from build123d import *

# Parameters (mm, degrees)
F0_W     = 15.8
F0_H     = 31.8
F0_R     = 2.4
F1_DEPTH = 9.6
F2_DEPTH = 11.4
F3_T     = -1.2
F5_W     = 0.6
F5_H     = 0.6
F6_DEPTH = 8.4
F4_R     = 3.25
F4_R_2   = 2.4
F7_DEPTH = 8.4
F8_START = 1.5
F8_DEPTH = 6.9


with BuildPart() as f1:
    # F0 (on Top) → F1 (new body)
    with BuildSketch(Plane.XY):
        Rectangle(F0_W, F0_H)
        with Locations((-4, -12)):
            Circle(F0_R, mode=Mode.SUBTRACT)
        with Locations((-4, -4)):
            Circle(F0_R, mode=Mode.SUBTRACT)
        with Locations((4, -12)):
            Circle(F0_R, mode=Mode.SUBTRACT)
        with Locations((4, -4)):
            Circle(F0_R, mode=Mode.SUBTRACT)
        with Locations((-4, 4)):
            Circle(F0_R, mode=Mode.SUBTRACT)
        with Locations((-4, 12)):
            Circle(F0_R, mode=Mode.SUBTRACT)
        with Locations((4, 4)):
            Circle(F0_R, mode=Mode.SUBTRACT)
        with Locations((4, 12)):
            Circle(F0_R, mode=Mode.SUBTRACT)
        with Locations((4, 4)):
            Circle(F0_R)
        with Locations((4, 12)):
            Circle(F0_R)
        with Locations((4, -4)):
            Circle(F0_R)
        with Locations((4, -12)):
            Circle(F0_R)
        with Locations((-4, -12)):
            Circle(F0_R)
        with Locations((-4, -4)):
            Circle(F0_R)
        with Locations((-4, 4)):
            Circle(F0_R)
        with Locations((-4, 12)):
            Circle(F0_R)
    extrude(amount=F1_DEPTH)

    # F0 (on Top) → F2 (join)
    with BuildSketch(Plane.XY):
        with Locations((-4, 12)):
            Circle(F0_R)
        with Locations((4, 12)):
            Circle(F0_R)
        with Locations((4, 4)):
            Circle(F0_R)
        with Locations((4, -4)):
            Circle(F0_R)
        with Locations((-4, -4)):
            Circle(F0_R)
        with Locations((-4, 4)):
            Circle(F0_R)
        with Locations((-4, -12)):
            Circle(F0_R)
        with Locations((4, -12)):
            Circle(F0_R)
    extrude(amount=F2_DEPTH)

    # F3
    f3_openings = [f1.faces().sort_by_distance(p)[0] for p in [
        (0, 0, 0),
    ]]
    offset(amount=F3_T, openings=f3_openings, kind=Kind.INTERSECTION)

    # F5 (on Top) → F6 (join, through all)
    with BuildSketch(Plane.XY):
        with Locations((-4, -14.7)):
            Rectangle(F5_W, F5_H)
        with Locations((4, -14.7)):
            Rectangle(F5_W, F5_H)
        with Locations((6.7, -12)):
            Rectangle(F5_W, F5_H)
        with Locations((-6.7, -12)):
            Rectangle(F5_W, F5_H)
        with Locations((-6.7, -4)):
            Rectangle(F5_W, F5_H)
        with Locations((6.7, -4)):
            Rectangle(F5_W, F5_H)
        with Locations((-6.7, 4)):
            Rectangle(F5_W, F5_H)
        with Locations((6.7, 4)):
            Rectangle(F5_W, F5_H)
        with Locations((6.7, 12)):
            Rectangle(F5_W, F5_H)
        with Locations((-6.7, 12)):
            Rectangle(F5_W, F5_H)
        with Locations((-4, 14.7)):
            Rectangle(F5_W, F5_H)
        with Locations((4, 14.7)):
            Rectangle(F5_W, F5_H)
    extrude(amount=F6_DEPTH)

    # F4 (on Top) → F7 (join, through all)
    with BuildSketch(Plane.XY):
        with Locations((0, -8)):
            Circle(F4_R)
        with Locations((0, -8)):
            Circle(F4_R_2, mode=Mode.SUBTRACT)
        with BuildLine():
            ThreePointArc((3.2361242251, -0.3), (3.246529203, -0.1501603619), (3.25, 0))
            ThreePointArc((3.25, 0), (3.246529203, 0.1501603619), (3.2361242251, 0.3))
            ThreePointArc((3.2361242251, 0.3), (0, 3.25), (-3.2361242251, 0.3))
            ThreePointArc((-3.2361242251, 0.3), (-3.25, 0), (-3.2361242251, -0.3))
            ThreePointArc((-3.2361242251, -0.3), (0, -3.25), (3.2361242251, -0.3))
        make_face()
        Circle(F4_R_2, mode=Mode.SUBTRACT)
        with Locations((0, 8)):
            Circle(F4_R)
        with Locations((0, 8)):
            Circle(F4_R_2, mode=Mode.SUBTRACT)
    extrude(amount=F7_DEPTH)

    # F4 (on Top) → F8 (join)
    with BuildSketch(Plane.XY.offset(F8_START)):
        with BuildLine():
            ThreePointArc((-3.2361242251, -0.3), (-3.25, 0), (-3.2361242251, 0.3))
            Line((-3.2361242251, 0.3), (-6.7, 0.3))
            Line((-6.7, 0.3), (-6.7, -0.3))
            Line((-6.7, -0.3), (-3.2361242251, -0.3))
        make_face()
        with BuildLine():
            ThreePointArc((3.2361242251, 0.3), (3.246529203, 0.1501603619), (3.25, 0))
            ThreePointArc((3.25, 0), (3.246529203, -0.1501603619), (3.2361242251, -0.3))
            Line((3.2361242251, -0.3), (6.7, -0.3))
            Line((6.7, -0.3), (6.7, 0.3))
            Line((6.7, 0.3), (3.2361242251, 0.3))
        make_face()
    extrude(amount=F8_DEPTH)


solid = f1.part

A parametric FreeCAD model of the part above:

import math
import FreeCAD as App
import Part
import Sketcher
from FreeCAD import Vector
Q = App.Units.Quantity


def faces_at(feature, points):
    """Names of the faces that lie closest to the given points."""
    faces = feature.Shape.Faces
    near = lambda p: min(range(len(faces)), key=lambda i: faces[i].distToShape(Part.Vertex(*p))[0])
    return sorted({f"Face{near(p) + 1}" for p in points})

doc = App.newDocument("Part")
params = doc.addObject("Spreadsheet::Sheet", "Params")
for row, (alias, value) in enumerate([
    ("sketch1_width", "15.8 mm"),
    ("sketch1_height", "31.8 mm"),
    ("pad1_length", "9.6 mm"),
    ("sketch2_diameter", "4.8 mm"),
    ("pad2_length", "11.4 mm"),
    ("thickness_wall", "1.2 mm"),
    ("sketch3_width", "0.6 mm"),
    ("sketch4_diameter", "6.5 mm"),
    ("sketch4_diameter2", "4.8 mm"),
    ("sketch5_radius", "3.25 mm"),
    ("sketch5_height", "0.6 mm"),
    ("pad5_length", "6.9 mm"),
], start=1):
    params.set(f"A{row}", alias)
    params.set(f"B{row}", "=" + value)
    params.setAlias(f"B{row}", alias)

body = doc.addObject("PartDesign::Body", "Body")

# Sketch on XY plane
sketch1 = body.newObject("Sketcher::SketchObject", "Sketch")
sketch1.AttachmentSupport = (doc.getObject("XY_Plane"), [""])
sketch1.MapMode = "FlatFace"
sketch1.addGeometry(Part.LineSegment(Vector(-8, 16, 0), Vector(-8, -16, 0)), False)
sketch1.addGeometry(Part.LineSegment(Vector(-8, -16, 0), Vector(8, -16, 0)), False)
sketch1.addGeometry(Part.LineSegment(Vector(8, -16, 0), Vector(8, 16, 0)), False)
sketch1.addGeometry(Part.LineSegment(Vector(8, 16, 0), Vector(-8, 16, 0)), False)
sketch1.addConstraint(Sketcher.Constraint("Coincident", 0, 2, 1, 1))
sketch1.addConstraint(Sketcher.Constraint("Coincident", 1, 2, 2, 1))
sketch1.addConstraint(Sketcher.Constraint("Coincident", 2, 2, 3, 1))
sketch1.addConstraint(Sketcher.Constraint("Coincident", 3, 2, 0, 1))
sketch1.addConstraint(Sketcher.Constraint("Vertical", 0))
sketch1.addConstraint(Sketcher.Constraint("Horizontal", 1))
sketch1.addConstraint(Sketcher.Constraint("Vertical", 2))
sketch1.addConstraint(Sketcher.Constraint("Horizontal", 3))
sketch1.addConstraint(Sketcher.Constraint("Symmetric", 0, 2, 2, 2, -1, 1))
sketch1.addConstraint(Sketcher.Constraint("DistanceX", 1, 1, 1, 2, Q("15.8 mm")))
sketch1.addConstraint(Sketcher.Constraint("DistanceY", 0, 2, 0, 1, Q("31.8 mm")))
sketch1.setExpression("Constraints[9]", "Params.sketch1_width")
sketch1.setExpression("Constraints[10]", "Params.sketch1_height")
pad1 = body.newObject("PartDesign::Pad", "Pad")
pad1.Profile = sketch1
pad1.setExpression("Length", "Params.pad1_length")

# Sketch on XY plane
sketch2 = body.newObject("Sketcher::SketchObject", "Sketch001")
sketch2.AttachmentSupport = (doc.getObject("XY_Plane"), [""])
sketch2.MapMode = "FlatFace"
sketch2.addGeometry(Part.Circle(Vector(-4, 12, 0), Vector(0, 0, 1), 2.4), False)
sketch2.addGeometry(Part.Circle(Vector(4, 12, 0), Vector(0, 0, 1), 2.4), False)
sketch2.addGeometry(Part.Circle(Vector(4, 4, 0), Vector(0, 0, 1), 2.4), False)
sketch2.addGeometry(Part.Circle(Vector(4, -4, 0), Vector(0, 0, 1), 2.4), False)
sketch2.addGeometry(Part.Circle(Vector(-4, -4, 0), Vector(0, 0, 1), 2.4), False)
sketch2.addGeometry(Part.Circle(Vector(-4, 4, 0), Vector(0, 0, 1), 2.4), False)
sketch2.addGeometry(Part.Circle(Vector(-4, -12, 0), Vector(0, 0, 1), 2.4), False)
sketch2.addGeometry(Part.Circle(Vector(4, -12, 0), Vector(0, 0, 1), 2.4), False)
sketch2.addConstraint(Sketcher.Constraint("Equal", 0, 1))
sketch2.addConstraint(Sketcher.Constraint("Equal", 1, 2))
sketch2.addConstraint(Sketcher.Constraint("Equal", 2, 3))
sketch2.addConstraint(Sketcher.Constraint("Equal", 3, 4))
sketch2.addConstraint(Sketcher.Constraint("Equal", 4, 5))
sketch2.addConstraint(Sketcher.Constraint("Equal", 5, 6))
sketch2.addConstraint(Sketcher.Constraint("Equal", 6, 7))
sketch2.addConstraint(Sketcher.Constraint("Symmetric", 2, 3, 4, 3, -1, 1))
sketch2.addConstraint(Sketcher.Constraint("Symmetric", 3, 3, 5, 3, -1, 1))
sketch2.addConstraint(Sketcher.Constraint("Symmetric", 1, 3, 6, 3, -1, 1))
sketch2.addConstraint(Sketcher.Constraint("Symmetric", 0, 3, 7, 3, -1, 1))
sketch2.addConstraint(Sketcher.Constraint("Symmetric", 0, 3, 1, 3, -2))
sketch2.addConstraint(Sketcher.Constraint("Symmetric", 3, 3, 4, 3, -2))
sketch2.addConstraint(Sketcher.Constraint("Vertical", 1, 3, 2, 3))
sketch2.addConstraint(Sketcher.Constraint("Diameter", 0, Q("4.8 mm")))
sketch2.addConstraint(Sketcher.Constraint("DistanceX", 0, 3, -1, 1, Q("4 mm")))
sketch2.addConstraint(Sketcher.Constraint("DistanceY", -1, 1, 0, 3, Q("12 mm")))
sketch2.addConstraint(Sketcher.Constraint("DistanceY", -1, 1, 2, 3, Q("4 mm")))
sketch2.setExpression("Constraints[14]", "Params.sketch2_diameter")
pad2 = body.newObject("PartDesign::Pad", "Pad001")
pad2.Profile = sketch2
pad2.setExpression("Length", "Params.pad2_length")
doc.recompute()

thickness = body.newObject("PartDesign::Thickness", "Thickness")
thickness.Base = (pad2, faces_at(pad2, [(0, 0, 0)]))
thickness.setExpression("Value", "Params.thickness_wall")
thickness.Reversed = True
thickness.Join = "Intersection"

# Sketch on XY plane
sketch3 = body.newObject("Sketcher::SketchObject", "Sketch002")
sketch3.AttachmentSupport = (doc.getObject("XY_Plane"), [""])
sketch3.MapMode = "FlatFace"
sketch3.addGeometry(Part.LineSegment(Vector(-4.3, -14.4, 0), Vector(-4.3, -15, 0)), False)
sketch3.addGeometry(Part.LineSegment(Vector(-4.3, -15, 0), Vector(-3.7, -15, 0)), False)
sketch3.addGeometry(Part.LineSegment(Vector(-3.7, -15, 0), Vector(-3.7, -14.4, 0)), False)
sketch3.addGeometry(Part.LineSegment(Vector(-3.7, -14.4, 0), Vector(-4.3, -14.4, 0)), False)
sketch3.addGeometry(Part.LineSegment(Vector(3.7, -14.4, 0), Vector(3.7, -15, 0)), False)
sketch3.addGeometry(Part.LineSegment(Vector(3.7, -15, 0), Vector(4.3, -15, 0)), False)
sketch3.addGeometry(Part.LineSegment(Vector(4.3, -15, 0), Vector(4.3, -14.4, 0)), False)
sketch3.addGeometry(Part.LineSegment(Vector(4.3, -14.4, 0), Vector(3.7, -14.4, 0)), False)
sketch3.addGeometry(Part.LineSegment(Vector(6.4, -11.7, 0), Vector(6.4, -12.3, 0)), False)
sketch3.addGeometry(Part.LineSegment(Vector(6.4, -12.3, 0), Vector(7, -12.3, 0)), False)
sketch3.addGeometry(Part.LineSegment(Vector(7, -12.3, 0), Vector(7, -11.7, 0)), False)
sketch3.addGeometry(Part.LineSegment(Vector(7, -11.7, 0), Vector(6.4, -11.7, 0)), False)
sketch3.addGeometry(Part.LineSegment(Vector(-7, -11.7, 0), Vector(-7, -12.3, 0)), False)
sketch3.addGeometry(Part.LineSegment(Vector(-7, -12.3, 0), Vector(-6.4, -12.3, 0)), False)
sketch3.addGeometry(Part.LineSegment(Vector(-6.4, -12.3, 0), Vector(-6.4, -11.7, 0)), False)
sketch3.addGeometry(Part.LineSegment(Vector(-6.4, -11.7, 0), Vector(-7, -11.7, 0)), False)
sketch3.addGeometry(Part.LineSegment(Vector(-7, -3.7, 0), Vector(-7, -4.3, 0)), False)
sketch3.addGeometry(Part.LineSegment(Vector(-7, -4.3, 0), Vector(-6.4, -4.3, 0)), False)
sketch3.addGeometry(Part.LineSegment(Vector(-6.4, -4.3, 0), Vector(-6.4, -3.7, 0)), False)
sketch3.addGeometry(Part.LineSegment(Vector(-6.4, -3.7, 0), Vector(-7, -3.7, 0)), False)
sketch3.addGeometry(Part.LineSegment(Vector(6.4, -3.7, 0), Vector(6.4, -4.3, 0)), False)
sketch3.addGeometry(Part.LineSegment(Vector(6.4, -4.3, 0), Vector(7, -4.3, 0)), False)
sketch3.addGeometry(Part.LineSegment(Vector(7, -4.3, 0), Vector(7, -3.7, 0)), False)
sketch3.addGeometry(Part.LineSegment(Vector(7, -3.7, 0), Vector(6.4, -3.7, 0)), False)
sketch3.addGeometry(Part.LineSegment(Vector(-7, 4.3, 0), Vector(-7, 3.7, 0)), False)
sketch3.addGeometry(Part.LineSegment(Vector(-7, 3.7, 0), Vector(-6.4, 3.7, 0)), False)
sketch3.addGeometry(Part.LineSegment(Vector(-6.4, 3.7, 0), Vector(-6.4, 4.3, 0)), False)
sketch3.addGeometry(Part.LineSegment(Vector(-6.4, 4.3, 0), Vector(-7, 4.3, 0)), False)
sketch3.addGeometry(Part.LineSegment(Vector(6.4, 4.3, 0), Vector(6.4, 3.7, 0)), False)
sketch3.addGeometry(Part.LineSegment(Vector(6.4, 3.7, 0), Vector(7, 3.7, 0)), False)
sketch3.addGeometry(Part.LineSegment(Vector(7, 3.7, 0), Vector(7, 4.3, 0)), False)
sketch3.addGeometry(Part.LineSegment(Vector(7, 4.3, 0), Vector(6.4, 4.3, 0)), False)
sketch3.addGeometry(Part.LineSegment(Vector(6.4, 12.3, 0), Vector(6.4, 11.7, 0)), False)
sketch3.addGeometry(Part.LineSegment(Vector(6.4, 11.7, 0), Vector(7, 11.7, 0)), False)
sketch3.addGeometry(Part.LineSegment(Vector(7, 11.7, 0), Vector(7, 12.3, 0)), False)
sketch3.addGeometry(Part.LineSegment(Vector(7, 12.3, 0), Vector(6.4, 12.3, 0)), False)
sketch3.addGeometry(Part.LineSegment(Vector(-7, 12.3, 0), Vector(-7, 11.7, 0)), False)
sketch3.addGeometry(Part.LineSegment(Vector(-7, 11.7, 0), Vector(-6.4, 11.7, 0)), False)
sketch3.addGeometry(Part.LineSegment(Vector(-6.4, 11.7, 0), Vector(-6.4, 12.3, 0)), False)
sketch3.addGeometry(Part.LineSegment(Vector(-6.4, 12.3, 0), Vector(-7, 12.3, 0)), False)
sketch3.addGeometry(Part.LineSegment(Vector(-4.3, 15, 0), Vector(-4.3, 14.4, 0)), False)
sketch3.addGeometry(Part.LineSegment(Vector(-4.3, 14.4, 0), Vector(-3.7, 14.4, 0)), False)
sketch3.addGeometry(Part.LineSegment(Vector(-3.7, 14.4, 0), Vector(-3.7, 15, 0)), False)
sketch3.addGeometry(Part.LineSegment(Vector(-3.7, 15, 0), Vector(-4.3, 15, 0)), False)
sketch3.addGeometry(Part.LineSegment(Vector(3.7, 15, 0), Vector(3.7, 14.4, 0)), False)
sketch3.addGeometry(Part.LineSegment(Vector(3.7, 14.4, 0), Vector(4.3, 14.4, 0)), False)
sketch3.addGeometry(Part.LineSegment(Vector(4.3, 14.4, 0), Vector(4.3, 15, 0)), False)
sketch3.addGeometry(Part.LineSegment(Vector(4.3, 15, 0), Vector(3.7, 15, 0)), False)
sketch3.addConstraint(Sketcher.Constraint("Coincident", 0, 2, 1, 1))
sketch3.addConstraint(Sketcher.Constraint("Coincident", 1, 2, 2, 1))
sketch3.addConstraint(Sketcher.Constraint("Coincident", 2, 2, 3, 1))
sketch3.addConstraint(Sketcher.Constraint("Coincident", 3, 2, 0, 1))
sketch3.addConstraint(Sketcher.Constraint("Coincident", 4, 2, 5, 1))
sketch3.addConstraint(Sketcher.Constraint("Coincident", 5, 2, 6, 1))
sketch3.addConstraint(Sketcher.Constraint("Coincident", 6, 2, 7, 1))
sketch3.addConstraint(Sketcher.Constraint("Coincident", 7, 2, 4, 1))
sketch3.addConstraint(Sketcher.Constraint("Coincident", 8, 2, 9, 1))
sketch3.addConstraint(Sketcher.Constraint("Coincident", 9, 2, 10, 1))
sketch3.addConstraint(Sketcher.Constraint("Coincident", 10, 2, 11, 1))
sketch3.addConstraint(Sketcher.Constraint("Coincident", 11, 2, 8, 1))
sketch3.addConstraint(Sketcher.Constraint("Coincident", 12, 2, 13, 1))
sketch3.addConstraint(Sketcher.Constraint("Coincident", 13, 2, 14, 1))
sketch3.addConstraint(Sketcher.Constraint("Coincident", 14, 2, 15, 1))
sketch3.addConstraint(Sketcher.Constraint("Coincident", 15, 2, 12, 1))
sketch3.addConstraint(Sketcher.Constraint("Coincident", 16, 2, 17, 1))
sketch3.addConstraint(Sketcher.Constraint("Coincident", 17, 2, 18, 1))
sketch3.addConstraint(Sketcher.Constraint("Coincident", 18, 2, 19, 1))
sketch3.addConstraint(Sketcher.Constraint("Coincident", 19, 2, 16, 1))
sketch3.addConstraint(Sketcher.Constraint("Coincident", 20, 2, 21, 1))
sketch3.addConstraint(Sketcher.Constraint("Coincident", 21, 2, 22, 1))
sketch3.addConstraint(Sketcher.Constraint("Coincident", 22, 2, 23, 1))
sketch3.addConstraint(Sketcher.Constraint("Coincident", 23, 2, 20, 1))
sketch3.addConstraint(Sketcher.Constraint("Coincident", 24, 2, 25, 1))
sketch3.addConstraint(Sketcher.Constraint("Coincident", 25, 2, 26, 1))
sketch3.addConstraint(Sketcher.Constraint("Coincident", 26, 2, 27, 1))
sketch3.addConstraint(Sketcher.Constraint("Coincident", 27, 2, 24, 1))
sketch3.addConstraint(Sketcher.Constraint("Coincident", 28, 2, 29, 1))
sketch3.addConstraint(Sketcher.Constraint("Coincident", 29, 2, 30, 1))
sketch3.addConstraint(Sketcher.Constraint("Coincident", 30, 2, 31, 1))
sketch3.addConstraint(Sketcher.Constraint("Coincident", 31, 2, 28, 1))
sketch3.addConstraint(Sketcher.Constraint("Coincident", 32, 2, 33, 1))
sketch3.addConstraint(Sketcher.Constraint("Coincident", 33, 2, 34, 1))
sketch3.addConstraint(Sketcher.Constraint("Coincident", 34, 2, 35, 1))
sketch3.addConstraint(Sketcher.Constraint("Coincident", 35, 2, 32, 1))
sketch3.addConstraint(Sketcher.Constraint("Coincident", 36, 2, 37, 1))
sketch3.addConstraint(Sketcher.Constraint("Coincident", 37, 2, 38, 1))
sketch3.addConstraint(Sketcher.Constraint("Coincident", 38, 2, 39, 1))
sketch3.addConstraint(Sketcher.Constraint("Coincident", 39, 2, 36, 1))
sketch3.addConstraint(Sketcher.Constraint("Coincident", 40, 2, 41, 1))
sketch3.addConstraint(Sketcher.Constraint("Coincident", 41, 2, 42, 1))
sketch3.addConstraint(Sketcher.Constraint("Coincident", 42, 2, 43, 1))
sketch3.addConstraint(Sketcher.Constraint("Coincident", 43, 2, 40, 1))
sketch3.addConstraint(Sketcher.Constraint("Coincident", 44, 2, 45, 1))
sketch3.addConstraint(Sketcher.Constraint("Coincident", 45, 2, 46, 1))
sketch3.addConstraint(Sketcher.Constraint("Coincident", 46, 2, 47, 1))
sketch3.addConstraint(Sketcher.Constraint("Coincident", 47, 2, 44, 1))
sketch3.addConstraint(Sketcher.Constraint("Vertical", 0))
sketch3.addConstraint(Sketcher.Constraint("Horizontal", 1))
sketch3.addConstraint(Sketcher.Constraint("Vertical", 2))
sketch3.addConstraint(Sketcher.Constraint("Horizontal", 3))
sketch3.addConstraint(Sketcher.Constraint("Vertical", 4))
sketch3.addConstraint(Sketcher.Constraint("Horizontal", 5))
sketch3.addConstraint(Sketcher.Constraint("Vertical", 6))
sketch3.addConstraint(Sketcher.Constraint("Horizontal", 7))
sketch3.addConstraint(Sketcher.Constraint("Vertical", 8))
sketch3.addConstraint(Sketcher.Constraint("Horizontal", 9))
sketch3.addConstraint(Sketcher.Constraint("Vertical", 10))
sketch3.addConstraint(Sketcher.Constraint("Horizontal", 11))
sketch3.addConstraint(Sketcher.Constraint("Vertical", 12))
sketch3.addConstraint(Sketcher.Constraint("Horizontal", 13))
sketch3.addConstraint(Sketcher.Constraint("Vertical", 14))
sketch3.addConstraint(Sketcher.Constraint("Horizontal", 15))
sketch3.addConstraint(Sketcher.Constraint("Vertical", 16))
sketch3.addConstraint(Sketcher.Constraint("Horizontal", 17))
sketch3.addConstraint(Sketcher.Constraint("Vertical", 18))
sketch3.addConstraint(Sketcher.Constraint("Horizontal", 19))
sketch3.addConstraint(Sketcher.Constraint("Vertical", 20))
sketch3.addConstraint(Sketcher.Constraint("Horizontal", 21))
sketch3.addConstraint(Sketcher.Constraint("Vertical", 22))
sketch3.addConstraint(Sketcher.Constraint("Horizontal", 23))
sketch3.addConstraint(Sketcher.Constraint("Vertical", 24))
sketch3.addConstraint(Sketcher.Constraint("Horizontal", 25))
sketch3.addConstraint(Sketcher.Constraint("Vertical", 26))
sketch3.addConstraint(Sketcher.Constraint("Horizontal", 27))
sketch3.addConstraint(Sketcher.Constraint("Vertical", 28))
sketch3.addConstraint(Sketcher.Constraint("Horizontal", 29))
sketch3.addConstraint(Sketcher.Constraint("Vertical", 30))
sketch3.addConstraint(Sketcher.Constraint("Horizontal", 31))
sketch3.addConstraint(Sketcher.Constraint("Vertical", 32))
sketch3.addConstraint(Sketcher.Constraint("Horizontal", 33))
sketch3.addConstraint(Sketcher.Constraint("Vertical", 34))
sketch3.addConstraint(Sketcher.Constraint("Horizontal", 35))
sketch3.addConstraint(Sketcher.Constraint("Vertical", 36))
sketch3.addConstraint(Sketcher.Constraint("Horizontal", 37))
sketch3.addConstraint(Sketcher.Constraint("Vertical", 38))
sketch3.addConstraint(Sketcher.Constraint("Horizontal", 39))
sketch3.addConstraint(Sketcher.Constraint("Vertical", 40))
sketch3.addConstraint(Sketcher.Constraint("Horizontal", 41))
sketch3.addConstraint(Sketcher.Constraint("Vertical", 42))
sketch3.addConstraint(Sketcher.Constraint("Horizontal", 43))
sketch3.addConstraint(Sketcher.Constraint("Vertical", 44))
sketch3.addConstraint(Sketcher.Constraint("Horizontal", 45))
sketch3.addConstraint(Sketcher.Constraint("Vertical", 46))
sketch3.addConstraint(Sketcher.Constraint("Horizontal", 47))
sketch3.addConstraint(Sketcher.Constraint("Symmetric", 22, 2, 24, 2, -1, 1))
sketch3.addConstraint(Sketcher.Constraint("Symmetric", 20, 2, 26, 2, -1, 1))
sketch3.addConstraint(Sketcher.Constraint("Symmetric", 18, 2, 28, 2, -1, 1))
sketch3.addConstraint(Sketcher.Constraint("Symmetric", 16, 2, 30, 2, -1, 1))
sketch3.addConstraint(Sketcher.Constraint("Symmetric", 14, 2, 32, 2, -1, 1))
sketch3.addConstraint(Sketcher.Constraint("Symmetric", 12, 2, 34, 2, -1, 1))
sketch3.addConstraint(Sketcher.Constraint("Symmetric", 10, 2, 36, 2, -1, 1))
sketch3.addConstraint(Sketcher.Constraint("Symmetric", 8, 2, 38, 2, -1, 1))
sketch3.addConstraint(Sketcher.Constraint("Symmetric", 6, 2, 40, 2, -1, 1))
sketch3.addConstraint(Sketcher.Constraint("Symmetric", 4, 2, 42, 2, -1, 1))
sketch3.addConstraint(Sketcher.Constraint("Symmetric", 2, 2, 44, 2, -1, 1))
sketch3.addConstraint(Sketcher.Constraint("Symmetric", 0, 2, 46, 2, -1, 1))
sketch3.addConstraint(Sketcher.Constraint("Symmetric", 1, 2, 4, 2, -2))
sketch3.addConstraint(Sketcher.Constraint("Symmetric", 3, 2, 6, 2, -2))
sketch3.addConstraint(Sketcher.Constraint("Symmetric", 9, 2, 12, 2, -2))
sketch3.addConstraint(Sketcher.Constraint("Symmetric", 11, 2, 14, 2, -2))
sketch3.addConstraint(Sketcher.Constraint("Symmetric", 17, 2, 20, 2, -2))
sketch3.addConstraint(Sketcher.Constraint("Symmetric", 19, 2, 22, 2, -2))
sketch3.addConstraint(Sketcher.Constraint("Vertical", 15, 2, 16, 2))
sketch3.addConstraint(Sketcher.Constraint("Vertical", 14, 2, 17, 2))
sketch3.addConstraint(Sketcher.Constraint("Equal", 7, 9))
sketch3.addConstraint(Sketcher.Constraint("Equal", 47, 0))
sketch3.addConstraint(Sketcher.Constraint("Equal", 6, 8))
sketch3.addConstraint(Sketcher.Constraint("Equal", 14, 16))
sketch3.addConstraint(Sketcher.Constraint("DistanceX", 1, 1, 1, 2, Q("0.6 mm")))
sketch3.addConstraint(Sketcher.Constraint("DistanceY", 0, 2, -1, 1, Q("15 mm")))
sketch3.addConstraint(Sketcher.Constraint("DistanceX", -1, 1, 9, 2, Q("7 mm")))
sketch3.addConstraint(Sketcher.Constraint("DistanceX", 0, 2, 4, 2, Q("8 mm")))
sketch3.addConstraint(Sketcher.Constraint("DistanceY", 12, 2, 16, 2, Q("8 mm")))
sketch3.addConstraint(Sketcher.Constraint("DistanceY", 16, 2, 24, 2, Q("8 mm")))
sketch3.setExpression("Constraints[120]", "Params.sketch3_width")
pad3 = body.newObject("PartDesign::Pad", "Pad002")
pad3.Profile = sketch3
pad3.Type = "UpToLast"

# Sketch on XY plane
sketch4 = body.newObject("Sketcher::SketchObject", "Sketch003")
sketch4.AttachmentSupport = (doc.getObject("XY_Plane"), [""])
sketch4.MapMode = "FlatFace"
sketch4.addGeometry(Part.Circle(Vector(0, -8, 0), Vector(0, 0, 1), 3.25), False)
sketch4.addGeometry(Part.Circle(Vector(0, -8, 0), Vector(0, 0, 1), 2.4), False)
sketch4.addGeometry(Part.ArcOfCircle(Part.Circle(Vector(0, 0, 0), Vector(0, 0, 1), 3.25), math.radians(-5.3), math.radians(0)), False)
sketch4.addGeometry(Part.ArcOfCircle(Part.Circle(Vector(0, 0, 0), Vector(0, 0, 1), 3.25), math.radians(0), math.radians(5.3)), False)
sketch4.addGeometry(Part.ArcOfCircle(Part.Circle(Vector(0, 0, 0), Vector(0, 0, 1), 3.25), math.radians(5), math.radians(175)), False)
sketch4.addGeometry(Part.ArcOfCircle(Part.Circle(Vector(0, 0, 0), Vector(0, 0, 1), 3.25), math.radians(174.7), math.radians(185.3)), False)
sketch4.addGeometry(Part.ArcOfCircle(Part.Circle(Vector(0, 0, 0), Vector(0, 0, 1), 3.25), math.radians(-175), math.radians(-5)), False)
sketch4.addGeometry(Part.Circle(Vector(0, 0, 0), Vector(0, 0, 1), 2.4), False)
sketch4.addGeometry(Part.Circle(Vector(0, 8, 0), Vector(0, 0, 1), 3.25), False)
sketch4.addGeometry(Part.Circle(Vector(0, 8, 0), Vector(0, 0, 1), 2.4), False)
sketch4.addConstraint(Sketcher.Constraint("Tangent", 2, 2, 3, 1))
sketch4.addConstraint(Sketcher.Constraint("Tangent", 3, 2, 4, 1))
sketch4.addConstraint(Sketcher.Constraint("Tangent", 4, 2, 5, 1))
sketch4.addConstraint(Sketcher.Constraint("Tangent", 5, 2, 6, 1))
sketch4.addConstraint(Sketcher.Constraint("Tangent", 6, 2, 2, 1))
sketch4.addConstraint(Sketcher.Constraint("Coincident", 2, 3, -1, 1))
sketch4.addConstraint(Sketcher.Constraint("Coincident", 4, 3, -1, 1))
sketch4.addConstraint(Sketcher.Constraint("Coincident", 7, 3, -1, 1))
sketch4.addConstraint(Sketcher.Constraint("Coincident", 1, 3, 0, 3))
sketch4.addConstraint(Sketcher.Constraint("Coincident", 9, 3, 8, 3))
sketch4.addConstraint(Sketcher.Constraint("Equal", 0, 2))
sketch4.addConstraint(Sketcher.Constraint("Equal", 1, 7))
sketch4.addConstraint(Sketcher.Constraint("Equal", 6, 8))
sketch4.addConstraint(Sketcher.Constraint("Equal", 7, 9))
sketch4.addConstraint(Sketcher.Constraint("Symmetric", 0, 3, 8, 3, -1, 1))
sketch4.addConstraint(Sketcher.Constraint("PointOnObject", 0, 3, -2))
sketch4.addConstraint(Sketcher.Constraint("PointOnObject", 2, 2, -1))
sketch4.addConstraint(Sketcher.Constraint("Horizontal", 3, 2, 4, 2))
sketch4.addConstraint(Sketcher.Constraint("Horizontal", 5, 2, 6, 2))
sketch4.addConstraint(Sketcher.Constraint("Vertical", 4, 2, 5, 2))
sketch4.addConstraint(Sketcher.Constraint("Diameter", 0, Q("6.5 mm")))
sketch4.addConstraint(Sketcher.Constraint("Diameter", 1, Q("4.8 mm")))
sketch4.addConstraint(Sketcher.Constraint("DistanceY", 0, 3, -1, 1, Q("8 mm")))
sketch4.addConstraint(Sketcher.Constraint("DistanceY", -1, 1, 3, 2, Q("0.3 mm")))
sketch4.setExpression("Constraints[20]", "Params.sketch4_diameter")
sketch4.setExpression("Constraints[21]", "Params.sketch4_diameter2")
pad4 = body.newObject("PartDesign::Pad", "Pad003")
pad4.Profile = sketch4
pad4.Type = "UpToLast"

# Sketch on XY plane
sketch5 = body.newObject("Sketcher::SketchObject", "Sketch004")
sketch5.AttachmentSupport = (doc.getObject("XY_Plane"), [""])
sketch5.MapMode = "FlatFace"
sketch5.AttachmentOffset = App.Placement(Vector(0, 0, 1.5), App.Rotation())
sketch5.addGeometry(Part.ArcOfCircle(Part.Circle(Vector(0, 0, 0), Vector(0, 0, 1), 3.25), math.radians(174.7), math.radians(185.3)), False)
sketch5.addGeometry(Part.LineSegment(Vector(-3.24, 0.3, 0), Vector(-6.7, 0.3, 0)), False)
sketch5.addGeometry(Part.LineSegment(Vector(-6.7, 0.3, 0), Vector(-6.7, -0.3, 0)), False)
sketch5.addGeometry(Part.LineSegment(Vector(-6.7, -0.3, 0), Vector(-3.24, -0.3, 0)), False)
sketch5.addGeometry(Part.ArcOfCircle(Part.Circle(Vector(0, 0, 0), Vector(0, 0, 1), 3.25), math.radians(0), math.radians(5.3)), False)
sketch5.addGeometry(Part.ArcOfCircle(Part.Circle(Vector(0, 0, 0), Vector(0, 0, 1), 3.25), math.radians(-5.3), math.radians(0)), False)
sketch5.addGeometry(Part.LineSegment(Vector(3.24, -0.3, 0), Vector(6.7, -0.3, 0)), False)
sketch5.addGeometry(Part.LineSegment(Vector(6.7, -0.3, 0), Vector(6.7, 0.3, 0)), False)
sketch5.addGeometry(Part.LineSegment(Vector(6.7, 0.3, 0), Vector(3.24, 0.3, 0)), False)
sketch5.addConstraint(Sketcher.Constraint("Coincident", 0, 1, 1, 1))
sketch5.addConstraint(Sketcher.Constraint("Coincident", 1, 2, 2, 1))
sketch5.addConstraint(Sketcher.Constraint("Coincident", 2, 2, 3, 1))
sketch5.addConstraint(Sketcher.Constraint("Coincident", 3, 2, 0, 2))
sketch5.addConstraint(Sketcher.Constraint("Tangent", 4, 1, 5, 2))
sketch5.addConstraint(Sketcher.Constraint("Coincident", 5, 1, 6, 1))
sketch5.addConstraint(Sketcher.Constraint("Coincident", 6, 2, 7, 1))
sketch5.addConstraint(Sketcher.Constraint("Coincident", 7, 2, 8, 1))
sketch5.addConstraint(Sketcher.Constraint("Coincident", 8, 2, 4, 2))
sketch5.addConstraint(Sketcher.Constraint("Horizontal", 1))
sketch5.addConstraint(Sketcher.Constraint("Vertical", 2))
sketch5.addConstraint(Sketcher.Constraint("Horizontal", 3))
sketch5.addConstraint(Sketcher.Constraint("Horizontal", 6))
sketch5.addConstraint(Sketcher.Constraint("Vertical", 7))
sketch5.addConstraint(Sketcher.Constraint("Horizontal", 8))
sketch5.addConstraint(Sketcher.Constraint("Coincident", 0, 3, -1, 1))
sketch5.addConstraint(Sketcher.Constraint("Coincident", 4, 3, -1, 1))
sketch5.addConstraint(Sketcher.Constraint("Equal", 0, 4))
sketch5.addConstraint(Sketcher.Constraint("Equal", 4, 5))
sketch5.addConstraint(Sketcher.Constraint("Symmetric", 1, 2, 6, 2, -1, 1))
sketch5.addConstraint(Sketcher.Constraint("PointOnObject", 4, 1, -1))
sketch5.addConstraint(Sketcher.Constraint("Horizontal", 3, 2, 5, 1))
sketch5.addConstraint(Sketcher.Constraint("Horizontal", 1, 2, 7, 2))
sketch5.addConstraint(Sketcher.Constraint("Radius", 0, Q("3.25 mm")))
sketch5.addConstraint(Sketcher.Constraint("DistanceY", 2, 2, 2, 1, Q("0.6 mm")))
sketch5.addConstraint(Sketcher.Constraint("DistanceX", 1, 2, -1, 1, Q("6.7 mm")))
sketch5.setExpression("Constraints[23]", "Params.sketch5_radius")
sketch5.setExpression("Constraints[24]", "Params.sketch5_height")
pad5 = body.newObject("PartDesign::Pad", "Pad004")
pad5.Profile = sketch5
pad5.setExpression("Length", "Params.pad5_length")

doc.recompute()
